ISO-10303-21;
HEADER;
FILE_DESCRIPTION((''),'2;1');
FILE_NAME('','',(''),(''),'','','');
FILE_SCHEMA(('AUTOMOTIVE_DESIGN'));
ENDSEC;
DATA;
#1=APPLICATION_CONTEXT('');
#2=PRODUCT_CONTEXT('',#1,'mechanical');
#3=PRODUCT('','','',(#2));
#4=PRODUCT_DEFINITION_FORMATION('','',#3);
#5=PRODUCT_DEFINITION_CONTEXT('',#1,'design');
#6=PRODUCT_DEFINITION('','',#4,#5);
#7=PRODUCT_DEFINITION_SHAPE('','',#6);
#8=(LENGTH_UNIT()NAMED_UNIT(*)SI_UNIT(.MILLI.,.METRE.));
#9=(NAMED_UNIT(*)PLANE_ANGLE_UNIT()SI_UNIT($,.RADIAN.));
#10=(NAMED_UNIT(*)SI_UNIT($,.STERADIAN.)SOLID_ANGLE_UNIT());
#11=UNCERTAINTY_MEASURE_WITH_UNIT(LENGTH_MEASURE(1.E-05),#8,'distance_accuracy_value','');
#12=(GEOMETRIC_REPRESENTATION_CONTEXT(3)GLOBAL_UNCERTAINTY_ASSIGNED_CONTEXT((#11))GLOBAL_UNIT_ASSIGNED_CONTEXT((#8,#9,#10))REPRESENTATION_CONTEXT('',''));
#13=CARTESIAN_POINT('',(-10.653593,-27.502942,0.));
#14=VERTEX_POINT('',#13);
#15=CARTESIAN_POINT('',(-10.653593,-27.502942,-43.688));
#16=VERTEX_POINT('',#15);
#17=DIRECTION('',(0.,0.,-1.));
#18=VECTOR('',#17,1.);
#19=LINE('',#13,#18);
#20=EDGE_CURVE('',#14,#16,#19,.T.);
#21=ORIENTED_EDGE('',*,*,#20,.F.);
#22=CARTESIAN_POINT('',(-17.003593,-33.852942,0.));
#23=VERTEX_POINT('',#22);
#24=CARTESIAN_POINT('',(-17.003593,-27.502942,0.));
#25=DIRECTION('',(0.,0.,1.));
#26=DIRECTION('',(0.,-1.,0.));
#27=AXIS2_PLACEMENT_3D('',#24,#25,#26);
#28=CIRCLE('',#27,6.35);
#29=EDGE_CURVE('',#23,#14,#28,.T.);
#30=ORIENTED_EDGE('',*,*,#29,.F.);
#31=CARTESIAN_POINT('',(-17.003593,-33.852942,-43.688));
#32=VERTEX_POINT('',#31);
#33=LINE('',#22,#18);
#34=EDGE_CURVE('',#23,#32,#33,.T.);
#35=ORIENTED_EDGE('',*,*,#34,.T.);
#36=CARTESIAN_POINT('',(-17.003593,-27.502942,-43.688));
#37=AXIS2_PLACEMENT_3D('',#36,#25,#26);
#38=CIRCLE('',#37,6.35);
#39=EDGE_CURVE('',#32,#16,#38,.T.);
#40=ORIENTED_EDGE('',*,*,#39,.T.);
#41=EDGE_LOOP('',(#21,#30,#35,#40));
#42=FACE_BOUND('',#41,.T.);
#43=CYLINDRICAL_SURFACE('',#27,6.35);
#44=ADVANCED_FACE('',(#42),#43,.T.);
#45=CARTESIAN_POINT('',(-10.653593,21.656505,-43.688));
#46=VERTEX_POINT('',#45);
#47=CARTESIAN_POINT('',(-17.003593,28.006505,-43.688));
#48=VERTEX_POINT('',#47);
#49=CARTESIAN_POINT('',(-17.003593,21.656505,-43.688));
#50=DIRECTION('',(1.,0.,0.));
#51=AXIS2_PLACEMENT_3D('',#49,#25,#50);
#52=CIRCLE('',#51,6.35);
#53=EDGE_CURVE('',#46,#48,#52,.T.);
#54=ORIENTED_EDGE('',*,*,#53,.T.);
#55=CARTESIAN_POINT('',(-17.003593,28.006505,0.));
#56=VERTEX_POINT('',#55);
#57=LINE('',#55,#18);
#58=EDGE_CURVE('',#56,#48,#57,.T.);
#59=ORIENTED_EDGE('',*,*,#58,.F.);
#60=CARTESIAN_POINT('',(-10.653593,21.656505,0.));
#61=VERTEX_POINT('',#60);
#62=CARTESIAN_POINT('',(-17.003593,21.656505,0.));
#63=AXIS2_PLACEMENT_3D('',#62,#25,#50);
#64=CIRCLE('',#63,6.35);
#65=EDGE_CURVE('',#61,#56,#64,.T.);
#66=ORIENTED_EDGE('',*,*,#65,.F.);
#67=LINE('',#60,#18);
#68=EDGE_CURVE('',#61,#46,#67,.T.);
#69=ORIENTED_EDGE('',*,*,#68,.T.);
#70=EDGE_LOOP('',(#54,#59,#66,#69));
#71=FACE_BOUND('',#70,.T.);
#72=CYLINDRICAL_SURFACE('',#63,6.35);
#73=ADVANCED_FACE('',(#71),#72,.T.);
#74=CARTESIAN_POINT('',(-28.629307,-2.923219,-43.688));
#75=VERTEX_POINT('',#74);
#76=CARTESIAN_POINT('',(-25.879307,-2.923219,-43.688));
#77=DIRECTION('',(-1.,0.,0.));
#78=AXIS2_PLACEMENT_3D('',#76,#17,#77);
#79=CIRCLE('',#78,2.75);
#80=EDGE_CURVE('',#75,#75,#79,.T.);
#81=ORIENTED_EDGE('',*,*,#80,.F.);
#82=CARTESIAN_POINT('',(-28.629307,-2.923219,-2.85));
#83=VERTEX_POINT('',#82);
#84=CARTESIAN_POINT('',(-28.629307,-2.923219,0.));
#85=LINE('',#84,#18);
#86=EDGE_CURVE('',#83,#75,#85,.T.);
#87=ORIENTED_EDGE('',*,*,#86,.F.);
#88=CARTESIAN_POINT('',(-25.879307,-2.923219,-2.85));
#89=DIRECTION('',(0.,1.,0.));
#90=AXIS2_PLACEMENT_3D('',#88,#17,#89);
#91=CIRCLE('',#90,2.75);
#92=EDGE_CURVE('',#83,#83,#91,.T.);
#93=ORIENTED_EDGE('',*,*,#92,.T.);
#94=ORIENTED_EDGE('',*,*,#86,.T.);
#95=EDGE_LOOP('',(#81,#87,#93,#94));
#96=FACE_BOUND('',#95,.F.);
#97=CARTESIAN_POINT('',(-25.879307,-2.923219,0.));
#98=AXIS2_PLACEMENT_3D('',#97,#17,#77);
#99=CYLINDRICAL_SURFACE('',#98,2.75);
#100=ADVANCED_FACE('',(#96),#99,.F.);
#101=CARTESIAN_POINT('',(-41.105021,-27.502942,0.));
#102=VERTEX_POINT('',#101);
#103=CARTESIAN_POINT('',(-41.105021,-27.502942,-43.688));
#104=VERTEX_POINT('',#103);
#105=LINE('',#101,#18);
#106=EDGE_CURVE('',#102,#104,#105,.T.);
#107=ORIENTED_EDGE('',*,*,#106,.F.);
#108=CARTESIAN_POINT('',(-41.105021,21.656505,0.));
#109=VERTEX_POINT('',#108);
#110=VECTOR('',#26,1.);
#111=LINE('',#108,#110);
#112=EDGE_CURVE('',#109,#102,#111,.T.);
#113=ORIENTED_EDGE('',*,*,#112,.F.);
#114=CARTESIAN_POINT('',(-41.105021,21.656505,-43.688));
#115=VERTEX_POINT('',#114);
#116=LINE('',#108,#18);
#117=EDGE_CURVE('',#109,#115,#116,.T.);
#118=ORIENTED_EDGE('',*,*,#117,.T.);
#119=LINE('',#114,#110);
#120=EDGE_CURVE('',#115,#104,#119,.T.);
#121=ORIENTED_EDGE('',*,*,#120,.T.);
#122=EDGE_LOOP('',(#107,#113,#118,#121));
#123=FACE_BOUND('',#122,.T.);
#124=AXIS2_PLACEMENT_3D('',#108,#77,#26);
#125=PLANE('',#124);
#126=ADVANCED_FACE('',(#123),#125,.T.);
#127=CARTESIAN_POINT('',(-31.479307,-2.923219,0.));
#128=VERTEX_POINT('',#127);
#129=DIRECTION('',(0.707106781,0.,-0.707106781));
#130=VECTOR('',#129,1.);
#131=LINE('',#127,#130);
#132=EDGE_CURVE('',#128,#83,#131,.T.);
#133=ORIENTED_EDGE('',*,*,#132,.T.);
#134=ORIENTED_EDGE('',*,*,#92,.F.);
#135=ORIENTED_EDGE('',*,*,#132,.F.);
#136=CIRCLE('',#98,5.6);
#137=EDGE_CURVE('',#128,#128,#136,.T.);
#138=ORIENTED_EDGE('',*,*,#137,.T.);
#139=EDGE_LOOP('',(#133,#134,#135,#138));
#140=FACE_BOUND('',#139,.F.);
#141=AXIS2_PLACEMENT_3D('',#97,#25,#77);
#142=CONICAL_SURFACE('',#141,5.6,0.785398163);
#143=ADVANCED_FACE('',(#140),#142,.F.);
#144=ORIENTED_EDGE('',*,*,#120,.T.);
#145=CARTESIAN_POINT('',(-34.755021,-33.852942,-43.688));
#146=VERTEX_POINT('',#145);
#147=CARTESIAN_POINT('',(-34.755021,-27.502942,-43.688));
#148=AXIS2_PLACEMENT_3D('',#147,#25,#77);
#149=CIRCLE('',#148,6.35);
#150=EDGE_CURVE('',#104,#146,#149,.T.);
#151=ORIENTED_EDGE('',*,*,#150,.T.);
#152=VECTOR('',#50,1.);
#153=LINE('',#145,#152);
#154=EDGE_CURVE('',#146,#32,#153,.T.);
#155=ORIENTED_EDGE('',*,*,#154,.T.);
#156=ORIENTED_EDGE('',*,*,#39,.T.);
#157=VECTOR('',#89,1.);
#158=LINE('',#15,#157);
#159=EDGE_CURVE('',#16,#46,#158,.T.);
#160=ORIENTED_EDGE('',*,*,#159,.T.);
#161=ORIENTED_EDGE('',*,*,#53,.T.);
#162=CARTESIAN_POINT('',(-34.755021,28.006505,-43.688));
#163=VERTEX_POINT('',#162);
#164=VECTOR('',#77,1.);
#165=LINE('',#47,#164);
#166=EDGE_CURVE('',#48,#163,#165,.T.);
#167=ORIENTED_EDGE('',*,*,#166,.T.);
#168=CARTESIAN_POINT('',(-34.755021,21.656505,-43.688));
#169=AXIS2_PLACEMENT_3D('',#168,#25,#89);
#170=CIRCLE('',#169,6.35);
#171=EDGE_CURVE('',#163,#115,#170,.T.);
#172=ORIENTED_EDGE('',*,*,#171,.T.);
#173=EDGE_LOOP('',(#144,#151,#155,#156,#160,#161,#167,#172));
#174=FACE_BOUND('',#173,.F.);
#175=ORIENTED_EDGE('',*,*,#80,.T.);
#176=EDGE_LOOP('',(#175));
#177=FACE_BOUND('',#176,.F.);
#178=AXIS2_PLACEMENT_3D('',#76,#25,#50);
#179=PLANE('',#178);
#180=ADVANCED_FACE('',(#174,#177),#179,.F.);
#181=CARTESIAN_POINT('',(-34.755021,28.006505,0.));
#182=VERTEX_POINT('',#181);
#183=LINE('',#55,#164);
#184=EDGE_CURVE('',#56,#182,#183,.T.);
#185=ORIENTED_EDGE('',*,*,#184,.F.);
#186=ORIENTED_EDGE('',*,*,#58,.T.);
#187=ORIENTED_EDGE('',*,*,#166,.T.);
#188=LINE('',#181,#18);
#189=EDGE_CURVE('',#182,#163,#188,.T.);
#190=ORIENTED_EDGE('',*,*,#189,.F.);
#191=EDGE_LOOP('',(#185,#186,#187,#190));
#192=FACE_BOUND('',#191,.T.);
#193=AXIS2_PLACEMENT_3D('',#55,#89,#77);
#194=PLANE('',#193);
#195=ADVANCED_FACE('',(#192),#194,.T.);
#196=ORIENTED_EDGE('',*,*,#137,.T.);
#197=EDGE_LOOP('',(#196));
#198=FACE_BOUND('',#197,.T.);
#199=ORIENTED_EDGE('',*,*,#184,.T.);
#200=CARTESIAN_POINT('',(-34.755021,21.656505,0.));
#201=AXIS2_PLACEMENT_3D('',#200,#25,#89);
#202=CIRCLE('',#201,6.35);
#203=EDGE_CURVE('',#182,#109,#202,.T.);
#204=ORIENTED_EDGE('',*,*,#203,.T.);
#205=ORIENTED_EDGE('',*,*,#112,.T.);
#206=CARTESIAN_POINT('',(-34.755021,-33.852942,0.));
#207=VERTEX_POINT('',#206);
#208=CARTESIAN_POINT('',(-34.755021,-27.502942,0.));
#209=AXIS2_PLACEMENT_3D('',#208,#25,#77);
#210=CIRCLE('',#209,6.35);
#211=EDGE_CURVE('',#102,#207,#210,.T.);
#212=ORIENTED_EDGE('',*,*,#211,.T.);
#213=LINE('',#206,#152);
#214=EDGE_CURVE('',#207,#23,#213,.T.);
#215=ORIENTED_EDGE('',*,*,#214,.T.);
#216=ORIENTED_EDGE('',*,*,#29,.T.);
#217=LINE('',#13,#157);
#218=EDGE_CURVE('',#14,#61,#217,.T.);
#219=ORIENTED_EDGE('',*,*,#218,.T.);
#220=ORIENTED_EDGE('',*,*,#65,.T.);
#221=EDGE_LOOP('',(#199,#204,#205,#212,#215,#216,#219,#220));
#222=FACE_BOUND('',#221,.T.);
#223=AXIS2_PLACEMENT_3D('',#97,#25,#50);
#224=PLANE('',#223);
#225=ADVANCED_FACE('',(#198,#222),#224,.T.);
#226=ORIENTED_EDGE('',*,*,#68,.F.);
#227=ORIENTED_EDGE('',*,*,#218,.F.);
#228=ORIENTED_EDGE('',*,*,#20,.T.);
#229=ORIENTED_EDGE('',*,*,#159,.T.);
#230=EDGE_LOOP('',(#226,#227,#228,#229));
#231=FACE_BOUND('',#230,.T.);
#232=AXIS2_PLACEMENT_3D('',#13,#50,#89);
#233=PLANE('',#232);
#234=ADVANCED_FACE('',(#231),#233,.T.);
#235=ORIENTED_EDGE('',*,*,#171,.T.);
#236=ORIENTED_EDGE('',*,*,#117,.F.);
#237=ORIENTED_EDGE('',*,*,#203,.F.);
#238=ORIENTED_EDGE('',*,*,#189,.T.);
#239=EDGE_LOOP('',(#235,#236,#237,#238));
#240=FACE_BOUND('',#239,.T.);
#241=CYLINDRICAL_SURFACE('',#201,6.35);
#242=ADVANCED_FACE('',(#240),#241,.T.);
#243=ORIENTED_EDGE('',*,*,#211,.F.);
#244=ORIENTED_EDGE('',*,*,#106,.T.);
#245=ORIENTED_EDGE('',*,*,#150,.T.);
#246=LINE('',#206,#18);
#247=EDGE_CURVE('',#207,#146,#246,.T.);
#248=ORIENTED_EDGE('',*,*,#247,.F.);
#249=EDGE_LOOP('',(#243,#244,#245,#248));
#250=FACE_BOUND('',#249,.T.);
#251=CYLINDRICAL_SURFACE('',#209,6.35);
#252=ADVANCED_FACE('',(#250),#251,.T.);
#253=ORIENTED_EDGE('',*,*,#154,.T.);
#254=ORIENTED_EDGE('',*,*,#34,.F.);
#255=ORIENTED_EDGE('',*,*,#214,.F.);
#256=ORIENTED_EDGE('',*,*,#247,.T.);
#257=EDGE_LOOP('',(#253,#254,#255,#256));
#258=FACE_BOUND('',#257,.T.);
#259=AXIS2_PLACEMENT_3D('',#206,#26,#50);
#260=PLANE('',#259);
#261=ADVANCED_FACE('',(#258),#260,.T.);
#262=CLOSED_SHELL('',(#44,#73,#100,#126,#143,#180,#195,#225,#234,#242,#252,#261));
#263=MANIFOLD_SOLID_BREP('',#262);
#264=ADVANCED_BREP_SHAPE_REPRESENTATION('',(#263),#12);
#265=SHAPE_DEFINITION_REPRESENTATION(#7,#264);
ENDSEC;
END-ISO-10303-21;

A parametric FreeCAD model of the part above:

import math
import FreeCAD as App
import Part
import Sketcher
from FreeCAD import Vector
Q = App.Units.Quantity

doc = App.newDocument("Part")
body = doc.addObject("PartDesign::Body", "Body")

sketch1 = doc.addObject("Sketcher::SketchObject", "Sketch")
body.addObject(sketch1)
sketch1.AttachmentSupport = (doc.XY_Plane, [""])
sketch1.MapMode = "FlatFace"
sketch1.addGeometry([
    Part.LineSegment(Vector(-17, 28, 0), Vector(-35, 28, 0)),
    Part.ArcOfCircle(Part.Circle(Vector(-35, 22, 0), Vector(0, 0, 1), 6), math.radians(90), math.radians(180)),
    Part.LineSegment(Vector(-41, 22, 0), Vector(-41, -28, 0)),
    Part.ArcOfCircle(Part.Circle(Vector(-35, -28, 0), Vector(0, 0, 1), 6), math.radians(180), math.radians(270)),
    Part.LineSegment(Vector(-35, -34, 0), Vector(-17, -34, 0)),
    Part.ArcOfCircle(Part.Circle(Vector(-17, -28, 0), Vector(0, 0, 1), 6), math.radians(-90), math.radians(0)),
    Part.LineSegment(Vector(-11, -28, 0), Vector(-11, 22, 0)),
    Part.ArcOfCircle(Part.Circle(Vector(-17, 22, 0), Vector(0, 0, 1), 6), math.radians(0), math.radians(90)),
], False)
sketch1.addConstraint([
    Sketcher.Constraint("Tangent", 0, 2, 1, 1),
    Sketcher.Constraint("Tangent", 1, 2, 2, 1),
    Sketcher.Constraint("Tangent", 2, 2, 3, 1),
    Sketcher.Constraint("Tangent", 3, 2, 4, 1),
    Sketcher.Constraint("Tangent", 4, 2, 5, 1),
    Sketcher.Constraint("Tangent", 5, 2, 6, 1),
    Sketcher.Constraint("Tangent", 6, 2, 7, 1),
    Sketcher.Constraint("Tangent", 7, 2, 0, 1),
    Sketcher.Constraint("Horizontal", 0),
    Sketcher.Constraint("Vertical", 2),
    Sketcher.Constraint("Horizontal", 4),
    Sketcher.Constraint("Vertical", 6),
    Sketcher.Constraint("Equal", 1, 3),
    Sketcher.Constraint("Equal", 3, 5),
    Sketcher.Constraint("Equal", 5, 7),
    Sketcher.Constraint("Radius", 1, Q("0.25 in")),
    Sketcher.Constraint("DistanceX", 0, 2, 0, 1, Q("17.751428 mm")),
    Sketcher.Constraint("DistanceY", 2, 2, 2, 1, Q("49.159448 mm")),
    Sketcher.Constraint("DistanceX", 1, 3, -1, 1, Q("34.755021 mm")),
    Sketcher.Constraint("DistanceY", -1, 1, 1, 3, Q("21.656505 mm")),
])
pad1 = doc.addObject("PartDesign::Pad", "Pad")
body.addObject(pad1)
pad1.Profile = sketch1
pad1.Length = Q("1.72 in")
pad1.Reversed = True

sketch2 = doc.addObject("Sketcher::SketchObject", "Sketch001")
body.addObject(sketch2)
sketch2.AttachmentSupport = (doc.XY_Plane, [""])
sketch2.MapMode = "FlatFace"
sketch2.addGeometry(Part.Circle(Vector(-25.9, -2.9, 0), Vector(0, 0, 1), 2.8), False)
sketch2.addConstraint([
    Sketcher.Constraint("Diameter", 0, Q("5.5 mm")),
    Sketcher.Constraint("DistanceY", 0, 3, -1, 1, Q("2.923219 mm")),
    Sketcher.Constraint("DistanceX", 0, 3, -1, 1, Q("25.879307 mm")),
])
doc.recompute()
hole = doc.addObject("PartDesign::Hole", "Hole")
body.addObject(hole)
hole.Profile = sketch2
hole.ThreadType = "None"
hole.Diameter = 5.5
hole.DepthType = "ThroughAll"
hole.HoleCutType = "Countersink"
hole.HoleCutDiameter = 11.2
hole.HoleCutCountersinkAngle = 90

doc.recompute()
